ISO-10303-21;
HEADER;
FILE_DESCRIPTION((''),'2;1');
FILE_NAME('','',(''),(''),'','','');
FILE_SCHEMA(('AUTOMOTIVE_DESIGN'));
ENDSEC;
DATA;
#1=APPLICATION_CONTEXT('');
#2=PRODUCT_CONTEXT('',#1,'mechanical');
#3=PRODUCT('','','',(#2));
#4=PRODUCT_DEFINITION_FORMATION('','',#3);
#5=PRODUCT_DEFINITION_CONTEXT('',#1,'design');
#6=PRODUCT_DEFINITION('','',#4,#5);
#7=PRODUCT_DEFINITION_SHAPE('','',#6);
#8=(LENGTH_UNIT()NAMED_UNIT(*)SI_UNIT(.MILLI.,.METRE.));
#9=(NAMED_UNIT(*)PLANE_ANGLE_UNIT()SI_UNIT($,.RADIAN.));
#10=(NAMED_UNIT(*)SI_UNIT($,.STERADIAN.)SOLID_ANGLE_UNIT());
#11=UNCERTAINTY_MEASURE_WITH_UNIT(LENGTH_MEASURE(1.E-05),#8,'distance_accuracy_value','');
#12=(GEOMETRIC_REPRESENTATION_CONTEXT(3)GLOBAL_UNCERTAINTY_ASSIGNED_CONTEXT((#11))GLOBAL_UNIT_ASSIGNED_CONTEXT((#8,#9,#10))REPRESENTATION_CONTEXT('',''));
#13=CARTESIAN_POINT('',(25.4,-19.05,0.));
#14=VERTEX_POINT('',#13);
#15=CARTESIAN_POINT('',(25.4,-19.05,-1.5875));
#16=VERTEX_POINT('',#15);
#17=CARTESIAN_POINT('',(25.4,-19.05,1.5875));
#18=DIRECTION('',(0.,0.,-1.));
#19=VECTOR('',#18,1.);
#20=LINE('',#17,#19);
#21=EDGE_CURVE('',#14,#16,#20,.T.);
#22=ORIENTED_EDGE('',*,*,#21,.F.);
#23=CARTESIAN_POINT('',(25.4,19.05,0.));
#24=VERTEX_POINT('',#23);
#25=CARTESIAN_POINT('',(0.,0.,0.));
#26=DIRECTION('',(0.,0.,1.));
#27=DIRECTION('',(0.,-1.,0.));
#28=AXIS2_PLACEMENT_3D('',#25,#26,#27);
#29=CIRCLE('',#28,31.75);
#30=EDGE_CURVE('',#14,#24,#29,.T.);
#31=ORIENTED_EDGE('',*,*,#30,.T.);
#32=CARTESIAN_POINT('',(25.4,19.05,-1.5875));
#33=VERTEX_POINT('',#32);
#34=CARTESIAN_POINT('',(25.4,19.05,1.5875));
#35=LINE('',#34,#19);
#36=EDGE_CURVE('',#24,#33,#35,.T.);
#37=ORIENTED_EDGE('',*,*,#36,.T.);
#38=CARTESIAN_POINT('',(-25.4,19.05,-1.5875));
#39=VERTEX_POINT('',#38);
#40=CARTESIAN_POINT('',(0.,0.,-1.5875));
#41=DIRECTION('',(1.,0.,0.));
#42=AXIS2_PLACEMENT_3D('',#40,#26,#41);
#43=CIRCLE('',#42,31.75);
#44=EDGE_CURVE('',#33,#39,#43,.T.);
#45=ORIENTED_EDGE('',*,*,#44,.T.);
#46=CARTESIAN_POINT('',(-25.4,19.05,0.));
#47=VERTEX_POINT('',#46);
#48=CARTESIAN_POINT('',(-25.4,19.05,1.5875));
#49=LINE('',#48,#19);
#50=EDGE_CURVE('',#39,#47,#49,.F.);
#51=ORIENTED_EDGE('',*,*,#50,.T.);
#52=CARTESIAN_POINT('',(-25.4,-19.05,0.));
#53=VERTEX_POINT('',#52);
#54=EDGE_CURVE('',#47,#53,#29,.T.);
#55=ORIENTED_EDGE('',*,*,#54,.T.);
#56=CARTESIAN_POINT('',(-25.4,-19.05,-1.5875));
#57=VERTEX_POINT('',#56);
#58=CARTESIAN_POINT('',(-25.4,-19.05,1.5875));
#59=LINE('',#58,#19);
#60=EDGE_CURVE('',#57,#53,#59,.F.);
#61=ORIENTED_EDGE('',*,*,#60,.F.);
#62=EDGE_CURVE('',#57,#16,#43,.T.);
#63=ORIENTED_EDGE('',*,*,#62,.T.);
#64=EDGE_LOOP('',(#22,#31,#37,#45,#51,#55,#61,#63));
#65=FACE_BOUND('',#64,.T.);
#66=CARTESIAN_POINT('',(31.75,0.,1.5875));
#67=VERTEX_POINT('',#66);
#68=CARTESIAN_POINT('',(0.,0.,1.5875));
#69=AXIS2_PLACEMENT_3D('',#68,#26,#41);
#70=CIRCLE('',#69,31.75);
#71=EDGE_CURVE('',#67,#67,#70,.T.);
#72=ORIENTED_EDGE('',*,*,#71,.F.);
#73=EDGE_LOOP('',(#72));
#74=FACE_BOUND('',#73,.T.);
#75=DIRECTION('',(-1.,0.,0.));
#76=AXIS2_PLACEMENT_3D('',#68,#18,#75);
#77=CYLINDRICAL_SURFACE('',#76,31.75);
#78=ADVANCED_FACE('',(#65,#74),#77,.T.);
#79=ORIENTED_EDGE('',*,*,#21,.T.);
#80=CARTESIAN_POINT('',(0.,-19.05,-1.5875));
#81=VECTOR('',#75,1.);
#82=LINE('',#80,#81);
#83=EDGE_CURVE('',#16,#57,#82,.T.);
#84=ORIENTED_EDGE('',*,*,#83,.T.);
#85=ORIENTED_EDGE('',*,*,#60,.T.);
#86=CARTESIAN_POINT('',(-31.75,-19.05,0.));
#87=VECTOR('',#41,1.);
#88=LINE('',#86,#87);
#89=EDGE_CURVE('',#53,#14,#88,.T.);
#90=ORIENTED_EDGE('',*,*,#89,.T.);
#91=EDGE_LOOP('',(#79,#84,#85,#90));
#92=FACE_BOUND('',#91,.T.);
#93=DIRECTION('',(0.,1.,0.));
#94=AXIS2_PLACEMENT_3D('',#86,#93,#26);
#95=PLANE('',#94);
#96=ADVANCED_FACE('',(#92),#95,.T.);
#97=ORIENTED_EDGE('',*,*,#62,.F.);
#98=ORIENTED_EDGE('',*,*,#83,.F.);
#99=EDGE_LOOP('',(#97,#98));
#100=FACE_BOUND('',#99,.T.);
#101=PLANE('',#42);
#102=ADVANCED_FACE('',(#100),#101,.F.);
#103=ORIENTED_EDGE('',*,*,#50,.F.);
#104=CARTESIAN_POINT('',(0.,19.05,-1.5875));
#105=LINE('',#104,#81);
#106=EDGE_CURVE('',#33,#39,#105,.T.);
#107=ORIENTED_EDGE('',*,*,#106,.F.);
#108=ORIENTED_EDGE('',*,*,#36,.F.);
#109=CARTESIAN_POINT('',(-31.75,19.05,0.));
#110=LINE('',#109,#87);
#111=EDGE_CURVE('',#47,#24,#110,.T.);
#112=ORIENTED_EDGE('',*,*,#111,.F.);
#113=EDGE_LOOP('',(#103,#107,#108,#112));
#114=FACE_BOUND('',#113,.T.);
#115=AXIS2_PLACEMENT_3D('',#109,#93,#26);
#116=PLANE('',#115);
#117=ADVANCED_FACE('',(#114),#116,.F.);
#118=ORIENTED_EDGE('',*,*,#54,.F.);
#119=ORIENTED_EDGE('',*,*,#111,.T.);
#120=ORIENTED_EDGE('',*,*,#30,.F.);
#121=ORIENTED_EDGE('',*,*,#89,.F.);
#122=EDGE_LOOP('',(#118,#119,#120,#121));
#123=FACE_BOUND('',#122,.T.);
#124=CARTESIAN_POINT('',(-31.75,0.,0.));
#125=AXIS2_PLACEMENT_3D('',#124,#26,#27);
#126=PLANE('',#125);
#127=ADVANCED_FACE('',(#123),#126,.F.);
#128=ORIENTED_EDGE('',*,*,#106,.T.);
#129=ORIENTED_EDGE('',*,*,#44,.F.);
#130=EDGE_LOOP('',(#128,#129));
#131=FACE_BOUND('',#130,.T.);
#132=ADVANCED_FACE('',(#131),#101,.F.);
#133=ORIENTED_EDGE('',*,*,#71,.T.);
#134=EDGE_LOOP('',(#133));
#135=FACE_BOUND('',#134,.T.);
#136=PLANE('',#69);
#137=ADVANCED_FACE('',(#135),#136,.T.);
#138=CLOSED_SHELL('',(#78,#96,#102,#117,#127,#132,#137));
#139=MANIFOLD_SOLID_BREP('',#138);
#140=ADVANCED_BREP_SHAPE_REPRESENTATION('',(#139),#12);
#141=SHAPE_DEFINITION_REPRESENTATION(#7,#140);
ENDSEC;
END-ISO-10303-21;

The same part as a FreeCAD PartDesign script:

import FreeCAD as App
import Part
import Sketcher
Q = App.Units.Quantity

doc = App.newDocument("Part")
body = doc.addObject("PartDesign::Body", "Body")

# Sketch on XY plane
sketch1 = body.newObject("Sketcher::SketchObject", "Sketch")
sketch1.AttachmentSupport = (doc.getObject("XY_Plane"), [""])
sketch1.MapMode = "FlatFace"
sketch1.addGeometry(Part.Circle(App.Vector(0, 0, 0), App.Vector(0, 0, 1), 32), False)
sketch1.addConstraint([
    Sketcher.Constraint("Coincident", 0, 3, -1, 1),
    Sketcher.Constraint("Diameter", 0, Q("2.5 in")),
])
pad1 = body.newObject("PartDesign::Pad", "Pad")
pad1.Profile = sketch1
pad1.Length = Q("0.125 in")
pad1.Midplane = True

# Sketch on YZ plane
sketch2 = body.newObject("Sketcher::SketchObject", "Sketch001")
sketch2.AttachmentSupport = (doc.getObject("YZ_Plane"), [""])
sketch2.MapMode = "FlatFace"
sketch2.addGeometry([
    Part.LineSegment(App.Vector(-19.1, 0, 0), App.Vector(-19.1, -1.6, 0)),
    Part.LineSegment(App.Vector(-19.1, -1.6, 0), App.Vector(19.1, -1.6, 0)),
    Part.LineSegment(App.Vector(19.1, -1.6, 0), App.Vector(19.1, 0, 0)),
    Part.LineSegment(App.Vector(19.1, 0, 0), App.Vector(-19.1, 0, 0)),
], False)
sketch2.addConstraint([
    Sketcher.Constraint("Coincident", 0, 2, 1, 1),
    Sketcher.Constraint("Coincident", 1, 2, 2, 1),
    Sketcher.Constraint("Coincident", 2, 2, 3, 1),
    Sketcher.Constraint("Coincident", 3, 2, 0, 1),
    Sketcher.Constraint("Vertical", 0),
    Sketcher.Constraint("Horizontal", 1),
    Sketcher.Constraint("Vertical", 2),
    Sketcher.Constraint("Horizontal", 3),
    Sketcher.Constraint("Symmetric", 2, 2, 3, 2, -1, 1),
    Sketcher.Constraint("DistanceX", 1, 1, 1, 2, Q("1.5 in")),
    Sketcher.Constraint("DistanceY", 0, 2, 0, 1, Q("0.0625 in")),
])
pocket1 = body.newObject("PartDesign::Pocket", "Pocket")
pocket1.Profile = sketch2
pocket1.Length = Q("2.5 in")
pocket1.Midplane = True

doc.recompute()
